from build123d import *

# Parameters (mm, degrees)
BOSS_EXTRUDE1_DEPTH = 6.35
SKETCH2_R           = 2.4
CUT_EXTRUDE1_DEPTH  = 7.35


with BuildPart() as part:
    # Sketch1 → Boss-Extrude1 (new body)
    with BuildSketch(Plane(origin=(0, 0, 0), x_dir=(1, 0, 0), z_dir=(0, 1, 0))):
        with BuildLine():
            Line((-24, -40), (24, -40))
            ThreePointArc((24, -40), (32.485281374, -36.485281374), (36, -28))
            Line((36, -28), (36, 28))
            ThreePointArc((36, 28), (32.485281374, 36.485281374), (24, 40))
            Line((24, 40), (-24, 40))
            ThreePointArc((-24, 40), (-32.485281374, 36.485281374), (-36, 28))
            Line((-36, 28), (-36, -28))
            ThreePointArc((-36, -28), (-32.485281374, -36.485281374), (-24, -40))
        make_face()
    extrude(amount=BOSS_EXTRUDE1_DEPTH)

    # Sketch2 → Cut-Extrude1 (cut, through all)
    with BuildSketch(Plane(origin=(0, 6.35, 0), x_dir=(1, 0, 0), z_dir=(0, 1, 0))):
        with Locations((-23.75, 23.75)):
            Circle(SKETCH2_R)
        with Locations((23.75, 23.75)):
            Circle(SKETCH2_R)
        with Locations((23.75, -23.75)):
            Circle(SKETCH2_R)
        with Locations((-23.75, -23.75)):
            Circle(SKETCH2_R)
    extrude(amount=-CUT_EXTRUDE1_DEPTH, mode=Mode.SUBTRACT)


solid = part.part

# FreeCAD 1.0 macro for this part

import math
import FreeCAD as App
import Part
import Sketcher
from FreeCAD import Vector
Q = App.Units.Quantity

doc = App.newDocument("Part")
body = doc.addObject("PartDesign::Body", "Body")

# Sketch on XZ plane
sketch1 = body.newObject("Sketcher::SketchObject", "Sketch")
sketch1.AttachmentSupport = (doc.getObject("XZ_Plane"), [""])
sketch1.MapMode = "FlatFace"
sketch1.addGeometry([
    Part.LineSegment(Vector(-24, 40, 0), Vector(24, 40, 0)),  # 0
    Part.ArcOfCircle(Part.Circle(Vector(24, 28, 0), Vector(0, 0, 1), 12), math.radians(0), math.radians(90)),  # 1
    Part.LineSegment(Vector(36, 28, 0), Vector(36, -28, 0)),  # 2
    Part.ArcOfCircle(Part.Circle(Vector(24, -28, 0), Vector(0, 0, 1), 12), math.radians(-90), math.radians(0)),  # 3
    Part.LineSegment(Vector(24, -40, 0), Vector(-24, -40, 0)),  # 4
    Part.ArcOfCircle(Part.Circle(Vector(-24, -28, 0), Vector(0, 0, 1), 12), math.radians(-180), math.radians(-90)),  # 5
    Part.LineSegment(Vector(-36, -28, 0), Vector(-36, 28, 0)),  # 6
    Part.ArcOfCircle(Part.Circle(Vector(-24, 28, 0), Vector(0, 0, 1), 12), math.radians(90), math.radians(180)),  # 7
], False)
sketch1.addConstraint([
    Sketcher.Constraint("Tangent", 0, 2, 1, 2),
    Sketcher.Constraint("Tangent", 1, 1, 2, 1),
    Sketcher.Constraint("Tangent", 2, 2, 3, 2),
    Sketcher.Constraint("Tangent", 3, 1, 4, 1),
    Sketcher.Constraint("Tangent", 4, 2, 5, 2),
    Sketcher.Constraint("Tangent", 5, 1, 6, 1),
    Sketcher.Constraint("Tangent", 6, 2, 7, 2),
    Sketcher.Constraint("Tangent", 7, 1, 0, 1),
    Sketcher.Constraint("Horizontal", 0),
    Sketcher.Constraint("Vertical", 2),
    Sketcher.Constraint("Horizontal", 4),
    Sketcher.Constraint("Vertical", 6),
    Sketcher.Constraint("Equal", 1, 3),
    Sketcher.Constraint("Equal", 3, 5),
    Sketcher.Constraint("Equal", 5, 7),
    Sketcher.Constraint("Symmetric", 1, 3, 5, 3, -1, 1),
    Sketcher.Constraint("Radius", 1, Q("12 mm")),
    Sketcher.Constraint("DistanceX", 0, 1, 0, 2, Q("48 mm")),
    Sketcher.Constraint("DistanceY", 2, 2, 2, 1, Q("56 mm")),
])
pad1 = body.newObject("PartDesign::Pad", "Pad")
pad1.Profile = sketch1
pad1.Length = 6.35
pad1.Reversed = True

# Sketch on XZ plane
sketch2 = body.newObject("Sketcher::SketchObject", "Sketch001")
sketch2.AttachmentSupport = (doc.getObject("XZ_Plane"), [""])
sketch2.MapMode = "FlatFace"
sketch2.AttachmentOffset = App.Placement(Vector(0, 0, -6.35), App.Rotation())
sketch2.addGeometry([
    Part.Circle(Vector(-23.8, -23.8, 0), Vector(0, 0, 1), 2.4),
    Part.Circle(Vector(23.8, -23.8, 0), Vector(0, 0, 1), 2.4),
    Part.Circle(Vector(23.8, 23.8, 0), Vector(0, 0, 1), 2.4),
    Part.Circle(Vector(-23.8, 23.8, 0), Vector(0, 0, 1), 2.4),
], False)
sketch2.addConstraint([
    Sketcher.Constraint("Equal", 0, 1),
    Sketcher.Constraint("Equal", 1, 2),
    Sketcher.Constraint("Equal", 2, 3),
    Sketcher.Constraint("Symmetric", 0, 3, 2, 3, -1, 1),
    Sketcher.Constraint("Symmetric", 1, 3, 3, 3, -1, 1),
    Sketcher.Constraint("Symmetric", 0, 3, 1, 3, -2),
    Sketcher.Constraint("Diameter", 0, Q("4.8 mm")),
    Sketcher.Constraint("DistanceX", 0, 3, 1, 3, Q("47.5 mm")),
    Sketcher.Constraint("DistanceY", 1, 3, 2, 3, Q("47.5 mm")),
])
pocket1 = body.newObject("PartDesign::Pocket", "Pocket")
pocket1.Profile = sketch2
pocket1.Type = "ThroughAll"
pocket1.Reversed = True

doc.recompute()
